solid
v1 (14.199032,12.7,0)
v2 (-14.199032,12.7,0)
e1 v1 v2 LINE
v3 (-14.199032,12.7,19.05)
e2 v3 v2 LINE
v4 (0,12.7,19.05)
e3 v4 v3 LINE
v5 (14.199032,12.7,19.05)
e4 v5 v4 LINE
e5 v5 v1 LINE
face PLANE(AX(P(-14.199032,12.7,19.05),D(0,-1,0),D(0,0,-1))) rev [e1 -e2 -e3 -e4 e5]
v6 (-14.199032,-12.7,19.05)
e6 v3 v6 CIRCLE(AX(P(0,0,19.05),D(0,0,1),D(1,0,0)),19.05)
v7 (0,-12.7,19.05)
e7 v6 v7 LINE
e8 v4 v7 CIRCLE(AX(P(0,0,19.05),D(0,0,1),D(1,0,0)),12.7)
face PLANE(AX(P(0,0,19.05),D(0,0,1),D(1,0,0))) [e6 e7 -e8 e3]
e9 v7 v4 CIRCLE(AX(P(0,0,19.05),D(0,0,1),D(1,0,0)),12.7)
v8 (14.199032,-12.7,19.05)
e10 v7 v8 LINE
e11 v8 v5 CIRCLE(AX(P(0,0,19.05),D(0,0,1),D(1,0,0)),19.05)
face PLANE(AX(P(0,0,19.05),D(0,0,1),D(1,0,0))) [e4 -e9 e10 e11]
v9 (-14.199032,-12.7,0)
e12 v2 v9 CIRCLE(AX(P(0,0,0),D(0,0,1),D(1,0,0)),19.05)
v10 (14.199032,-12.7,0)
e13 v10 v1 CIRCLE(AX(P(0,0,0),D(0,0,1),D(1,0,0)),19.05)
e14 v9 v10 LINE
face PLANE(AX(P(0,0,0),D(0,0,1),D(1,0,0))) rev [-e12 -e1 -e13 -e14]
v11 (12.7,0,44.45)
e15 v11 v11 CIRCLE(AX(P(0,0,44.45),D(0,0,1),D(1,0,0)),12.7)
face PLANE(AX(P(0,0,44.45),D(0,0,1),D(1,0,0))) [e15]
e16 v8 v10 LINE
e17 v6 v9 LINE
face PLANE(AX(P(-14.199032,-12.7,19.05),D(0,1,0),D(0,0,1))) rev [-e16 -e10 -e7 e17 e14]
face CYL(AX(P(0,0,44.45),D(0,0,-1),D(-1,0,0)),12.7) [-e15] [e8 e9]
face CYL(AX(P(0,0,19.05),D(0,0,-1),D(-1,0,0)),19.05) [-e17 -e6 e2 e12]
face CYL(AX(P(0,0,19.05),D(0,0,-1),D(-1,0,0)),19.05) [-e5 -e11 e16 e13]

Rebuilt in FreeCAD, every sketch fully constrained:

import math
import FreeCAD as App
import Part
import Sketcher
Q = App.Units.Quantity

doc = App.newDocument("Part")
body = doc.addObject("PartDesign::Body", "Body")

# Sketch on XY plane
sketch1 = body.newObject("Sketcher::SketchObject", "Sketch")
sketch1.AttachmentSupport = (doc.getObject("XY_Plane"), [""])
sketch1.MapMode = "FlatFace"
sketch1.addGeometry(Part.LineSegment(App.Vector(14, 13, 0), App.Vector(-14, 13, 0)), False)
sketch1.addGeometry(Part.ArcOfCircle(Part.Circle(App.Vector(0, 0, 0), App.Vector(0, 0, 1), 19), math.radians(138), math.radians(222)), False)
sketch1.addGeometry(Part.LineSegment(App.Vector(-14, -13, 0), App.Vector(14, -13, 0)), False)
sketch1.addGeometry(Part.ArcOfCircle(Part.Circle(App.Vector(0, 0, 0), App.Vector(0, 0, 1), 19), math.radians(-42), math.radians(42)), False)
sketch1.addConstraint(Sketcher.Constraint("Coincident", 0, 2, 1, 1))
sketch1.addConstraint(Sketcher.Constraint("Coincident", 1, 2, 2, 1))
sketch1.addConstraint(Sketcher.Constraint("Coincident", 2, 2, 3, 1))
sketch1.addConstraint(Sketcher.Constraint("Coincident", 3, 2, 0, 1))
sketch1.addConstraint(Sketcher.Constraint("Horizontal", 0))
sketch1.addConstraint(Sketcher.Constraint("Horizontal", 2))
sketch1.addConstraint(Sketcher.Constraint("Coincident", 1, 3, -1, 1))
sketch1.addConstraint(Sketcher.Constraint("Coincident", 3, 3, -1, 1))
sketch1.addConstraint(Sketcher.Constraint("Equal", 1, 3))
sketch1.addConstraint(Sketcher.Constraint("Vertical", 0, 2, 1, 2))
sketch1.addConstraint(Sketcher.Constraint("Radius", 1, Q("0.75 in")))
sketch1.addConstraint(Sketcher.Constraint("DistanceY", 1, 2, 0, 2, Q("1 in")))
pad1 = body.newObject("PartDesign::Pad", "Pad")
pad1.Profile = sketch1
pad1.Length = Q("0.75 in")

# Sketch on XY plane
sketch2 = body.newObject("Sketcher::SketchObject", "Sketch001")
sketch2.AttachmentSupport = (doc.getObject("XY_Plane"), [""])
sketch2.MapMode = "FlatFace"
sketch2.AttachmentOffset = App.Placement(App.Vector(0, 0, 0.75 * 25.4), App.Rotation())
sketch2.addGeometry(Part.Circle(App.Vector(0, 0, 0), App.Vector(0, 0, 1), 13), False)
sketch2.addConstraint(Sketcher.Constraint("Coincident", 0, 3, -1, 1))
sketch2.addConstraint(Sketcher.Constraint("Diameter", 0, Q("1 in")))
pad2 = body.newObject("PartDesign::Pad", "Pad001")
pad2.Profile = sketch2
pad2.Length = Q("1 in")

doc.recompute()
